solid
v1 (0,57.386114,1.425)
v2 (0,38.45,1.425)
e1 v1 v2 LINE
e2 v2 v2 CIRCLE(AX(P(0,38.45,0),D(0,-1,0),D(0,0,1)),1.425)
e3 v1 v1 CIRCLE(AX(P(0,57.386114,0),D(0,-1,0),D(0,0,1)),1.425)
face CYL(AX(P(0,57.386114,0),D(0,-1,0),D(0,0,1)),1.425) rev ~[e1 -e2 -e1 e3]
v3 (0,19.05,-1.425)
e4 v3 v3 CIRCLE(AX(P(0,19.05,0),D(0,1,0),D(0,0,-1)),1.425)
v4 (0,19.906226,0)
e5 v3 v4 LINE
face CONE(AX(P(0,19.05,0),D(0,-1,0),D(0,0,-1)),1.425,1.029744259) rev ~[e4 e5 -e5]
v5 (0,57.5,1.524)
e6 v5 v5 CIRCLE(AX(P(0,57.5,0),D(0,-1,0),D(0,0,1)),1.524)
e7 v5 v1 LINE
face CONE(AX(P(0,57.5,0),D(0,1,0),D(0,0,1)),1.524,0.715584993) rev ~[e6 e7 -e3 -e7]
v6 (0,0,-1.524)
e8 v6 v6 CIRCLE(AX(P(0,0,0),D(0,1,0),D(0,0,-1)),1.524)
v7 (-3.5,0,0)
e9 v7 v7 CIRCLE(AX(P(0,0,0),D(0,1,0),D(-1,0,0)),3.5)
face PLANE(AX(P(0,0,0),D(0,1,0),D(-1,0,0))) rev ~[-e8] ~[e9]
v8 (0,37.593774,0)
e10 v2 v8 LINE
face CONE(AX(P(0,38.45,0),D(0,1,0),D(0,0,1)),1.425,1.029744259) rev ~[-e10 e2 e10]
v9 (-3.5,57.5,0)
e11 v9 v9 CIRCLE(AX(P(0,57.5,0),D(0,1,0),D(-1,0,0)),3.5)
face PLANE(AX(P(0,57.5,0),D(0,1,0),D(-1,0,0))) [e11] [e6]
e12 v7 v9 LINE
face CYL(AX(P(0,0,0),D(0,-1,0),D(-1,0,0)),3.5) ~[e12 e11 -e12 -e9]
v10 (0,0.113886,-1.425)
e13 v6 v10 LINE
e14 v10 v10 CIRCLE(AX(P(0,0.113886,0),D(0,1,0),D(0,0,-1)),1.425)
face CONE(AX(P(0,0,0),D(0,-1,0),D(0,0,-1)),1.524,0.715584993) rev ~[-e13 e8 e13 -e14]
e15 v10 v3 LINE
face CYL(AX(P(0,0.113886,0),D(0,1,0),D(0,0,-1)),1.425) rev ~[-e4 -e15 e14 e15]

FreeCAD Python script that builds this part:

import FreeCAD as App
import Part
import Sketcher

doc = App.newDocument("Part")
body = doc.addObject("PartDesign::Body", "Body")

sketch1 = body.newObject("Sketcher::SketchObject", "Sketch")
sketch1.AttachmentSupport = (doc.getObject("XZ_Plane"), [""])
sketch1.MapMode = "FlatFace"
sketch1.addGeometry(Part.Circle(App.Vector(0, 0, 0), App.Vector(0, 0, 1), 3.5), False)
sketch1.addConstraint(Sketcher.Constraint("Coincident", 0, 3, -1, 1))
sketch1.addConstraint(Sketcher.Constraint("Diameter", 0, 7.0))
pad1 = body.newObject("PartDesign::Pad", "Pad")
pad1.Profile = sketch1
pad1.Length = 57.5
pad1.Reversed = True

sketch2 = body.newObject("Sketcher::SketchObject", "Sketch001")
sketch2.AttachmentSupport = (doc.getObject("XZ_Plane"), [""])
sketch2.MapMode = "FlatFace"
sketch2.AttachmentOffset = App.Placement(App.Vector(0, 0, -57.5), App.Rotation())
sketch2.addGeometry(Part.Circle(App.Vector(0, 0, 0), App.Vector(0, 0, 1), 1.425), False)
sketch2.addConstraint(Sketcher.Constraint("Coincident", 0, 3, -1, 1))
sketch2.addConstraint(Sketcher.Constraint("Diameter", 0, 2.85))
doc.recompute()
hole = body.newObject("PartDesign::Hole", "Hole")
hole.Profile = sketch2
hole.ThreadType = "None"
hole.Diameter = 2.85
hole.DepthType = "Dimension"
hole.Depth = 19.05
hole.DrillPoint = "Angled"
hole.DrillPointAngle = 118
hole.HoleCutType = "Countersink"
hole.HoleCutDiameter = 3.048
hole.HoleCutCountersinkAngle = 82
hole.Reversed = True

sketch3 = body.newObject("Sketcher::SketchObject", "Sketch002")
sketch3.AttachmentSupport = (doc.getObject("XZ_Plane"), [""])
sketch3.MapMode = "FlatFace"
sketch3.addGeometry(Part.Circle(App.Vector(0, 0, 0), App.Vector(0, 0, 1), 1.425), False)
sketch3.addConstraint(Sketcher.Constraint("Coincident", 0, 3, -1, 1))
sketch3.addConstraint(Sketcher.Constraint("Diameter", 0, 2.85))
doc.recompute()
hole2 = body.newObject("PartDesign::Hole", "Hole001")
hole2.Profile = sketch3
hole2.ThreadType = "None"
hole2.Diameter = 2.85
hole2.DepthType = "Dimension"
hole2.Depth = 19.05
hole2.DrillPoint = "Angled"
hole2.DrillPointAngle = 118
hole2.HoleCutType = "Countersink"
hole2.HoleCutDiameter = 3.048
hole2.HoleCutCountersinkAngle = 82

doc.recompute()
